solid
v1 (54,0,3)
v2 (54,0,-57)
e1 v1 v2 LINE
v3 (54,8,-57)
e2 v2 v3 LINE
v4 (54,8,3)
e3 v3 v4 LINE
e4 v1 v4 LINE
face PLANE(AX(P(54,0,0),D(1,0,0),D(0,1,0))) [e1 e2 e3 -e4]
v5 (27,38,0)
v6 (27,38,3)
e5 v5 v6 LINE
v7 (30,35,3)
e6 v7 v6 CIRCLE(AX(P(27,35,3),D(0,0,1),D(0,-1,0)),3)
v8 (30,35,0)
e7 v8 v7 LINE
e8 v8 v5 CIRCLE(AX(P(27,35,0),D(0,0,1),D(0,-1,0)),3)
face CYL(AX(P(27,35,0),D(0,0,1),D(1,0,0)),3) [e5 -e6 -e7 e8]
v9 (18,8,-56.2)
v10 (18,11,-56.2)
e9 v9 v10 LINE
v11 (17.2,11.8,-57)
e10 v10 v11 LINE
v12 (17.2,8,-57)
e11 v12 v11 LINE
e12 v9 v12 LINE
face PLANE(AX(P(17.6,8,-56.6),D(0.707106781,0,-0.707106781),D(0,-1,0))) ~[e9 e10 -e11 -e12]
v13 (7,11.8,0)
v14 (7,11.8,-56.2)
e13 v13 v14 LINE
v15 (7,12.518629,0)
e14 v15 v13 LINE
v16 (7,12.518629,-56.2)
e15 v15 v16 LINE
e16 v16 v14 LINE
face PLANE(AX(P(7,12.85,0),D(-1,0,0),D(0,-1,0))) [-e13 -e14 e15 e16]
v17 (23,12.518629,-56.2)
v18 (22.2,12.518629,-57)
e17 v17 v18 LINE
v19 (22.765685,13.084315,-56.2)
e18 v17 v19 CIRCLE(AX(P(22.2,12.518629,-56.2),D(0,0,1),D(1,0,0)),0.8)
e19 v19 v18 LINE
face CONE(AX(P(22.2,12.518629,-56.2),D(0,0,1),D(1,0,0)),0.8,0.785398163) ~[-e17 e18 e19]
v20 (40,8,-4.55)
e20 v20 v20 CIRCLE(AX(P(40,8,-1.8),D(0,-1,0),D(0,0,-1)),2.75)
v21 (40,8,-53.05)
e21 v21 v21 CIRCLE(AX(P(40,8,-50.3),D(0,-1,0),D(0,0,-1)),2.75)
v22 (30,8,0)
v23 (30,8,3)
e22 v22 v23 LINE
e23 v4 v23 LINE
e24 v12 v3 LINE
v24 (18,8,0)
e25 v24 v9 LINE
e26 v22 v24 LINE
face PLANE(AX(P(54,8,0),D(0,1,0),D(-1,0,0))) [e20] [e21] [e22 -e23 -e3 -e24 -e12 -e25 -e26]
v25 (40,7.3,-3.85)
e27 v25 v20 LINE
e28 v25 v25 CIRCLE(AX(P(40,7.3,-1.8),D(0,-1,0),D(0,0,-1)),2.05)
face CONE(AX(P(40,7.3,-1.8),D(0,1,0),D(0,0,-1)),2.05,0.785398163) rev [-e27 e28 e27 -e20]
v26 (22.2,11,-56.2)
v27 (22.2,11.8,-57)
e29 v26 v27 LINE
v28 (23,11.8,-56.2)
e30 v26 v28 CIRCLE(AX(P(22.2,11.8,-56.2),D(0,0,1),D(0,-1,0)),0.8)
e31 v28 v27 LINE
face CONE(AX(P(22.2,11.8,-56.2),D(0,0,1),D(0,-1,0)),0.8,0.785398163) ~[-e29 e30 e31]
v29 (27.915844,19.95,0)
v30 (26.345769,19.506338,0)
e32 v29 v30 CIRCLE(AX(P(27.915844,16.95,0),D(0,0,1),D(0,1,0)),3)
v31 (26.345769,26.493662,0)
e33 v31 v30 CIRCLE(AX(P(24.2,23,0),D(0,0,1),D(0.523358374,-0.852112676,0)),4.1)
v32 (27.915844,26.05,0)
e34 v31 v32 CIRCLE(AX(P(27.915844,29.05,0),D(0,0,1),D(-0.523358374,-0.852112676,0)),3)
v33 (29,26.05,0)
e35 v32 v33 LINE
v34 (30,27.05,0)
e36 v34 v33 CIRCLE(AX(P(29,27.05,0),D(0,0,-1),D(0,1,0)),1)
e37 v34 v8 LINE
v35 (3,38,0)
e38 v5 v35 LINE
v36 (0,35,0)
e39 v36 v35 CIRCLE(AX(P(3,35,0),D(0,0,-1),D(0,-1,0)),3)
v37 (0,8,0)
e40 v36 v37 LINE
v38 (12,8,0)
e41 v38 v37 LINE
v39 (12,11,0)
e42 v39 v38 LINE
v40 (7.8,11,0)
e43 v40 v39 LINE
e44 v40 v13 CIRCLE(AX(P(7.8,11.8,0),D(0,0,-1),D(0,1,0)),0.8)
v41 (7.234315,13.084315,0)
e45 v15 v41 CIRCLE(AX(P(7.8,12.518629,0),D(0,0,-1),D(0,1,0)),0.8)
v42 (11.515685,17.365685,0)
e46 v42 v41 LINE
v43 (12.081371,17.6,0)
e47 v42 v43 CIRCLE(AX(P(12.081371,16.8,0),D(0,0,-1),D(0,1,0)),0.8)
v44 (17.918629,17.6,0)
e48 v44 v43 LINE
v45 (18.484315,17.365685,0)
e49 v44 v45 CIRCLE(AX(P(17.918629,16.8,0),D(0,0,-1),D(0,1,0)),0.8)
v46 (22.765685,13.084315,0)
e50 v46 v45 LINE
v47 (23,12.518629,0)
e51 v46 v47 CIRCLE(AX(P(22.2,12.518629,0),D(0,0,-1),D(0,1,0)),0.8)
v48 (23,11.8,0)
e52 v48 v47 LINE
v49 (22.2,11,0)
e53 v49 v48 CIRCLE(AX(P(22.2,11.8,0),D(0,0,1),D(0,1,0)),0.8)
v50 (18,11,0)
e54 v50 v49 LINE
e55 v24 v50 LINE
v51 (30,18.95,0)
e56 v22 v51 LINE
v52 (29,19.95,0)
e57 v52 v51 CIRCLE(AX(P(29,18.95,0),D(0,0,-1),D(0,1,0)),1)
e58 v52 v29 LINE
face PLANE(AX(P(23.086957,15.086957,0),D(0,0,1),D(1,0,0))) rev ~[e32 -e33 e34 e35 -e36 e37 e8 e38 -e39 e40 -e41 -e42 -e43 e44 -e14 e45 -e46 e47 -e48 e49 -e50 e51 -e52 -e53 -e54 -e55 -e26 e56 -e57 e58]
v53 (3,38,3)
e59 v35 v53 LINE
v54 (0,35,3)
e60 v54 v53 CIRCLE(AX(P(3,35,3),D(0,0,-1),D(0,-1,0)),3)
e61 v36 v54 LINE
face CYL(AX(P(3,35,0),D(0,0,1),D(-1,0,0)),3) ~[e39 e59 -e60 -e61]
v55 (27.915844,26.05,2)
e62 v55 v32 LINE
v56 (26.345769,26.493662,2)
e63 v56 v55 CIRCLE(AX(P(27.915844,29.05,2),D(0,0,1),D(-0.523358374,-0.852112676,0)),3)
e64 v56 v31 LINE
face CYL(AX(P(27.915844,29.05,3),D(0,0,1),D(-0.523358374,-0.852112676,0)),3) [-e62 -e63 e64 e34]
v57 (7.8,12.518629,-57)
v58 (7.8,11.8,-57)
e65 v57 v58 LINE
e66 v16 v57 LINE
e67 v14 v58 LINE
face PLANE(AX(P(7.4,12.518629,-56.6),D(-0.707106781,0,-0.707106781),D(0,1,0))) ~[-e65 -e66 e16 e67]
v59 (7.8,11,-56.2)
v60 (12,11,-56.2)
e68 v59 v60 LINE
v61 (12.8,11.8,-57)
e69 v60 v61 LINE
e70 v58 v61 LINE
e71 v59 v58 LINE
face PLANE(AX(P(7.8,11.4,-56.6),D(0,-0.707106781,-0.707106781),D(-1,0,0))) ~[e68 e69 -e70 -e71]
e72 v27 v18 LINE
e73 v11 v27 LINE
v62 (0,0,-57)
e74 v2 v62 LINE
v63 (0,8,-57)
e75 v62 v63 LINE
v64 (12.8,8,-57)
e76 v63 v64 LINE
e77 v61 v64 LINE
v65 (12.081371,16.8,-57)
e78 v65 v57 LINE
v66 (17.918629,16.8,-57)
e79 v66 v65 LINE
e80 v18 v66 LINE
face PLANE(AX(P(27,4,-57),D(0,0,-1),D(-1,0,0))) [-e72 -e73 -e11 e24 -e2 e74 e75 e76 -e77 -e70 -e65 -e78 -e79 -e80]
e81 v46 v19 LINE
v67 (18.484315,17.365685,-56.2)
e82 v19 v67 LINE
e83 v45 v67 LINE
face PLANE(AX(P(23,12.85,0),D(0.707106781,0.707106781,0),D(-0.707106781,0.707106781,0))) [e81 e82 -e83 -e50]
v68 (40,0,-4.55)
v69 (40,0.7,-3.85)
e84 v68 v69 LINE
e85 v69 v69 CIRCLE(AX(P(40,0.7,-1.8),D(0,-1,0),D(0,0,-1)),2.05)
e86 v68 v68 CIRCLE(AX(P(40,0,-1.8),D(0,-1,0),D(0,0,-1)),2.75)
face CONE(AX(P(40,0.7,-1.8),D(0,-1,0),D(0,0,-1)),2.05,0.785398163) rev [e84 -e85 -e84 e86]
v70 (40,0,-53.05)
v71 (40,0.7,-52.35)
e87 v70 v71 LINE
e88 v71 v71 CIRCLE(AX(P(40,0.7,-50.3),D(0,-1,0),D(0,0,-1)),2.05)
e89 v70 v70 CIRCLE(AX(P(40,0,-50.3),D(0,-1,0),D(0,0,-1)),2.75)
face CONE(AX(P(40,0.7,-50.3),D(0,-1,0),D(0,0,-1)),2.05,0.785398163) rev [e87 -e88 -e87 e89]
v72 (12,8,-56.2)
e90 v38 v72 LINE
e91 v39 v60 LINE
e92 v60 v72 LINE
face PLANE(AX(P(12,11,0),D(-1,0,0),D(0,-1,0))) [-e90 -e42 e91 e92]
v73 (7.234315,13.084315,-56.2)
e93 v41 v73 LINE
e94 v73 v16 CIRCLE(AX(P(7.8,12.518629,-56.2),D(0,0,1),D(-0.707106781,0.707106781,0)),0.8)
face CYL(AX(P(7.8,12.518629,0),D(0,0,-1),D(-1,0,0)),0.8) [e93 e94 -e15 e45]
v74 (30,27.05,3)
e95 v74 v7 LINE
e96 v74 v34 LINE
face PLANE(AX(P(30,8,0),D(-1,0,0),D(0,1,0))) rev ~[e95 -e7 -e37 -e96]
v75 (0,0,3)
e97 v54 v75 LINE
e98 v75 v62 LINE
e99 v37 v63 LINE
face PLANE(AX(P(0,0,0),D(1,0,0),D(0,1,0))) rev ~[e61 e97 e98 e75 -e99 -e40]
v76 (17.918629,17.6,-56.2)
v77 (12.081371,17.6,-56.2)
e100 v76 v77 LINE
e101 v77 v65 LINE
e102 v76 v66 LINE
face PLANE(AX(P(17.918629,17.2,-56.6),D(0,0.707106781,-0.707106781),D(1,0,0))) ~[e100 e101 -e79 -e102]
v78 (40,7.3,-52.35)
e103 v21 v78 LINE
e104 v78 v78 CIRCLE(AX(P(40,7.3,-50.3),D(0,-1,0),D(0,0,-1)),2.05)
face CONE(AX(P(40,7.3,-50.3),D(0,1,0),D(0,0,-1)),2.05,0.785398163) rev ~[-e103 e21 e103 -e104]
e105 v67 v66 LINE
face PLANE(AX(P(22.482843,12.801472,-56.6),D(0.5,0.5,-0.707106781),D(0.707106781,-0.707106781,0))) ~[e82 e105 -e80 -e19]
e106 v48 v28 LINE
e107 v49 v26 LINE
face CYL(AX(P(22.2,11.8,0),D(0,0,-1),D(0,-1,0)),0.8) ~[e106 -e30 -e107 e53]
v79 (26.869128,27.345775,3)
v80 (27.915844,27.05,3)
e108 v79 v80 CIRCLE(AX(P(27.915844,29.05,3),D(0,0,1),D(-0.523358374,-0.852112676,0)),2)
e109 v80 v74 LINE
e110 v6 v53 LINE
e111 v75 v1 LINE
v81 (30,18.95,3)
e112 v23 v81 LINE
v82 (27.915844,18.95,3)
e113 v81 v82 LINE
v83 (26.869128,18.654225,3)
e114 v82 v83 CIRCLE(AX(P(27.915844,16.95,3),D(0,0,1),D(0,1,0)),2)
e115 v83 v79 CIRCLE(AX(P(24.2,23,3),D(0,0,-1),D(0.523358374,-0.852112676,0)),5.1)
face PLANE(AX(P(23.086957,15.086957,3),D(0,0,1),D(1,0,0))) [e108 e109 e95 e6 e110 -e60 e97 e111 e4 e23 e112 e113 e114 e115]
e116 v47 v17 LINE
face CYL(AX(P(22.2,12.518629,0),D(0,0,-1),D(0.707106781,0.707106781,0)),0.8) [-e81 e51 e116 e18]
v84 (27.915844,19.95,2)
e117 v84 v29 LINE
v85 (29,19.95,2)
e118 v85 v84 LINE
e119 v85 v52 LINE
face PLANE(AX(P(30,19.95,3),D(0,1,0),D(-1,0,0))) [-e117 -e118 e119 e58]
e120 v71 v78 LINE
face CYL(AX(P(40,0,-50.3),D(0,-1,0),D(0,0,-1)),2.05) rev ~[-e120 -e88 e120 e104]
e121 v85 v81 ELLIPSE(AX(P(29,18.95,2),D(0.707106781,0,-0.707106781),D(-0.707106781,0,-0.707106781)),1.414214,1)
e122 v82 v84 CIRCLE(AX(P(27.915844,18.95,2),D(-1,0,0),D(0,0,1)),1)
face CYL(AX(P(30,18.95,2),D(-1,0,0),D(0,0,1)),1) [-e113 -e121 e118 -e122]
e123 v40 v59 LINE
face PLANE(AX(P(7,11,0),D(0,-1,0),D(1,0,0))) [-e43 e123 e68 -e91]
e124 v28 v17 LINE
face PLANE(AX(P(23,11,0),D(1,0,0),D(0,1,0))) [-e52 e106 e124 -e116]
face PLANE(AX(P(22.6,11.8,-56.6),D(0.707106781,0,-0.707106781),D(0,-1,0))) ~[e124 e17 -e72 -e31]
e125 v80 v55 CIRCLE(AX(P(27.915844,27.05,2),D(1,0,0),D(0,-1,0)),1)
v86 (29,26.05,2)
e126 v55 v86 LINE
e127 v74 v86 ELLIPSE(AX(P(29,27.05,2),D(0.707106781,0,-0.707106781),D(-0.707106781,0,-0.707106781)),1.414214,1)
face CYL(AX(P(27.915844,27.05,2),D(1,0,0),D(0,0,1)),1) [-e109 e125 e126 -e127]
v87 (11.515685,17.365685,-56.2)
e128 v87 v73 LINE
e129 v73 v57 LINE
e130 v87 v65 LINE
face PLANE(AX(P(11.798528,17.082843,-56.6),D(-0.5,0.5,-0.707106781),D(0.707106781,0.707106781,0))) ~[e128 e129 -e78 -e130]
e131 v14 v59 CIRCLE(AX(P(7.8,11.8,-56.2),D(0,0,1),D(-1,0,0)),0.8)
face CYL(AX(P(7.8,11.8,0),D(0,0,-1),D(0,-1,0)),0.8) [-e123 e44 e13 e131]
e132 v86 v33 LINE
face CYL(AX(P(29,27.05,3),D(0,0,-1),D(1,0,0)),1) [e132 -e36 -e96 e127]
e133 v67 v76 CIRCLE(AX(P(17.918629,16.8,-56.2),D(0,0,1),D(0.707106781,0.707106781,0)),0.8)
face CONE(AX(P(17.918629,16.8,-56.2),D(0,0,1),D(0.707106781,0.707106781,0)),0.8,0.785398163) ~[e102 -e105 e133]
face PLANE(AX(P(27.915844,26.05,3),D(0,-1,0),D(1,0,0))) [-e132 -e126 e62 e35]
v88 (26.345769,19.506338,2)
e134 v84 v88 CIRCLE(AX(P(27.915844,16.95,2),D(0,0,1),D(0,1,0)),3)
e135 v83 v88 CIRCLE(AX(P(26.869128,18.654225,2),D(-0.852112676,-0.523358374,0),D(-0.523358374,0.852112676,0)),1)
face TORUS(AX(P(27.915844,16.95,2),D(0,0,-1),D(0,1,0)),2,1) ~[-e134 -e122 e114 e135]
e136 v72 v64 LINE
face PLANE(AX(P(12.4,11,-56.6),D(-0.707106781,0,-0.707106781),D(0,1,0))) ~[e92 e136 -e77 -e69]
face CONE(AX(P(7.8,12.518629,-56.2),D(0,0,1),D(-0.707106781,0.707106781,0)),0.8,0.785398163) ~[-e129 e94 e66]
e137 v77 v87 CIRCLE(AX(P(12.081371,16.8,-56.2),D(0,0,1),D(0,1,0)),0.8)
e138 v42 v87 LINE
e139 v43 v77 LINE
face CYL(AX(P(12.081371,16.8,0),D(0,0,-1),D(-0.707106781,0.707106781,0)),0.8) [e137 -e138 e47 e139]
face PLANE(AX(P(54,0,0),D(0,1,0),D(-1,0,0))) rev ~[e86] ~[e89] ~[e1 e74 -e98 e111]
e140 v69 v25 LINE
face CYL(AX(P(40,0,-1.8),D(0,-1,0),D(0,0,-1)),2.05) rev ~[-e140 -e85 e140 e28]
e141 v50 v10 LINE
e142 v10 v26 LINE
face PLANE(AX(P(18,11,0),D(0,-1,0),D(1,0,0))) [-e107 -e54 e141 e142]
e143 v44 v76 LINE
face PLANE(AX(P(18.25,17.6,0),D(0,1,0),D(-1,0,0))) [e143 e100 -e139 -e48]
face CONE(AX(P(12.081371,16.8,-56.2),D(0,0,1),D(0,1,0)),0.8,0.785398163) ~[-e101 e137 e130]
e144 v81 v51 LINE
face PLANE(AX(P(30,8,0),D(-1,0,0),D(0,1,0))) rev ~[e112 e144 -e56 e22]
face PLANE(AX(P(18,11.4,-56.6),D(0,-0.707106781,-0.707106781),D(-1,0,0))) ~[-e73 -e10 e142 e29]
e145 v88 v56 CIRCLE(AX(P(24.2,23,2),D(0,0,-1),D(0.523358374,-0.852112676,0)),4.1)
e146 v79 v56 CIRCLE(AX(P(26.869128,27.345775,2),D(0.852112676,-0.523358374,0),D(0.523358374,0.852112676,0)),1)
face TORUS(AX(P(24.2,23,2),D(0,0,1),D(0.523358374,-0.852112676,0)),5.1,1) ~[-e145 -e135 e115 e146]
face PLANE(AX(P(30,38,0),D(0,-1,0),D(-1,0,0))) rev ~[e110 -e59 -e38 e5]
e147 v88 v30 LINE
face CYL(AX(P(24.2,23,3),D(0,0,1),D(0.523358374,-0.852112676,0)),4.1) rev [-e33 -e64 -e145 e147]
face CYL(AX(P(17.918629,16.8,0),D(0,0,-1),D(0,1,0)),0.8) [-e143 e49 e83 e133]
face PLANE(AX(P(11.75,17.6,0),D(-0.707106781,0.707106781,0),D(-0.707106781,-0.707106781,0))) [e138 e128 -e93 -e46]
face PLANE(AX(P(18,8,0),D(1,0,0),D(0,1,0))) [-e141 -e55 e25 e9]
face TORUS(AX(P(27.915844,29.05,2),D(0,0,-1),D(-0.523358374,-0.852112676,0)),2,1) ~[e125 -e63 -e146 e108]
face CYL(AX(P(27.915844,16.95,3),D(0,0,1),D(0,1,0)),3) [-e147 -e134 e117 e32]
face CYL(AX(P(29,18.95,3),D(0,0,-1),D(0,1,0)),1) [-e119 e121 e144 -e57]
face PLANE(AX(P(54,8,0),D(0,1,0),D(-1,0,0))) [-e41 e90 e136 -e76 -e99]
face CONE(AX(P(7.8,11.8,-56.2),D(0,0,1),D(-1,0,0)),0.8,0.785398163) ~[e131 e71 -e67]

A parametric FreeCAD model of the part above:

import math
import FreeCAD as App
import Part
import Sketcher

V = App.Vector
Q = App.Units.Quantity


def edges_at(feature, points):
    """Names of the edges that pass closest to the given points."""
    edges = feature.Shape.Edges
    near = lambda p: min(range(len(edges)), key=lambda i: edges[i].distToShape(Part.Vertex(*p))[0])
    return sorted({f"Edge{near(p) + 1}" for p in points})


def add_polygon(sketch, points):
    """Adds a closed chain of lines whose ends are joined by coincident constraints."""
    first, n = sketch.GeometryCount, len(points)
    for a, b in zip(points, points[1:] + points[:1]):
        sketch.addGeometry(Part.LineSegment(App.Vector(*a, 0), App.Vector(*b, 0)), False)
    for i in range(n):
        sketch.addConstraint(Sketcher.Constraint("Coincident", first + i, 2, first + (i + 1) % n, 1))

doc = App.newDocument("Part")
body = doc.addObject("PartDesign::Body", "Body")

# Sketch on XY plane
sketch1 = body.newObject("Sketcher::SketchObject", "Sketch")
sketch1.AttachmentSupport = (doc.getObject("XY_Plane"), [""])
sketch1.MapMode = "FlatFace"
add_polygon(sketch1, [(54, 0), (54, 8), (30, 8), (30, 38), (0, 38), (0, 0)])  # lines 0-5
sketch1.addConstraint(Sketcher.Constraint("Vertical", 0))
sketch1.addConstraint(Sketcher.Constraint("Horizontal", 1))
sketch1.addConstraint(Sketcher.Constraint("Vertical", 2))
sketch1.addConstraint(Sketcher.Constraint("Horizontal", 3))
sketch1.addConstraint(Sketcher.Constraint("Vertical", 4))
sketch1.addConstraint(Sketcher.Constraint("Horizontal", 5))
sketch1.addConstraint(Sketcher.Constraint("Coincident", 4, 2, -1, 1))
sketch1.addConstraint(Sketcher.Constraint("Equal", 3, 2))
sketch1.addConstraint(Sketcher.Constraint("DistanceX", 1, 2, 1, 1, Q("24 mm")))
sketch1.addConstraint(Sketcher.Constraint("DistanceX", 3, 2, 3, 1, Q("30 mm")))
sketch1.addConstraint(Sketcher.Constraint("DistanceY", 0, 1, 0, 2, Q("8 mm")))
pad1 = body.newObject("PartDesign::Pad", "Pad")
pad1.Profile = sketch1
pad1.Length = 3

# Sketch on XY plane
sketch2 = body.newObject("Sketcher::SketchObject", "Sketch001")
sketch2.AttachmentSupport = (doc.getObject("XY_Plane"), [""])
sketch2.MapMode = "FlatFace"
add_polygon(sketch2, [(54, 8), (54, 0), (0, 0), (0, 8)])  # lines 0-3
sketch2.addConstraint(Sketcher.Constraint("Vertical", 0))
sketch2.addConstraint(Sketcher.Constraint("Horizontal", 1))
sketch2.addConstraint(Sketcher.Constraint("Vertical", 2))
sketch2.addConstraint(Sketcher.Constraint("Horizontal", 3))
sketch2.addConstraint(Sketcher.Constraint("Coincident", 1, 2, -1, 1))
sketch2.addConstraint(Sketcher.Constraint("DistanceX", 1, 2, 1, 1, Q("54 mm")))
sketch2.addConstraint(Sketcher.Constraint("DistanceY", 0, 2, 0, 1, Q("8 mm")))
pad2 = body.newObject("PartDesign::Pad", "Pad001")
pad2.Profile = sketch2
pad2.Length = 57
pad2.Reversed = True

# Sketch on XZ plane
sketch3 = body.newObject("Sketcher::SketchObject", "Sketch002")
sketch3.AttachmentSupport = (doc.getObject("XZ_Plane"), [""])
sketch3.MapMode = "FlatFace"
sketch3.addGeometry(Part.Circle(V(40, -1.8, 0), V(0, 0, 1), 2), False)
sketch3.addGeometry(Part.Circle(V(40, -50.3, 0), V(0, 0, 1), 2), False)
sketch3.addConstraint(Sketcher.Constraint("Equal", 0, 1))
sketch3.addConstraint(Sketcher.Constraint("Vertical", 0, 3, 1, 3))
sketch3.addConstraint(Sketcher.Constraint("Diameter", 0, Q("4.1 mm")))
sketch3.addConstraint(Sketcher.Constraint("DistanceX", -1, 1, 0, 3, Q("40 mm")))
sketch3.addConstraint(Sketcher.Constraint("DistanceY", 0, 3, -1, 1, Q("1.8 mm")))
sketch3.addConstraint(Sketcher.Constraint("DistanceY", 1, 3, -1, 1, Q("50.3 mm")))
pocket1 = body.newObject("PartDesign::Pocket", "Pocket")
pocket1.Profile = sketch3
pocket1.Length = 57

# Sketch on XY plane
sketch4 = body.newObject("Sketcher::SketchObject", "Sketch003")
sketch4.AttachmentSupport = (doc.getObject("XY_Plane"), [""])
sketch4.MapMode = "FlatFace"
add_polygon(sketch4, [(18, 11), (18, 8), (12, 8), (12, 11), (7, 11), (7, 12.8), (11.8, 17.6), (18.2, 17.6), (23, 12.8), (23, 11)])  # lines 0-9
sketch4.addConstraint(Sketcher.Constraint("Vertical", 0))
sketch4.addConstraint(Sketcher.Constraint("Horizontal", 1))
sketch4.addConstraint(Sketcher.Constraint("Vertical", 2))
sketch4.addConstraint(Sketcher.Constraint("Horizontal", 3))
sketch4.addConstraint(Sketcher.Constraint("Vertical", 4))
sketch4.addConstraint(Sketcher.Constraint("Horizontal", 6))
sketch4.addConstraint(Sketcher.Constraint("Vertical", 8))
sketch4.addConstraint(Sketcher.Constraint("Horizontal", 9))
sketch4.addConstraint(Sketcher.Constraint("Perpendicular", 5, 7))
sketch4.addConstraint(Sketcher.Constraint("Horizontal", 4, 2, 7, 2))
sketch4.addConstraint(Sketcher.Constraint("Horizontal", 3, 2, 8, 2))
sketch4.addConstraint(Sketcher.Constraint("Equal", 3, 9))
sketch4.addConstraint(Sketcher.Constraint("Equal", 5, 7))
sketch4.addConstraint(Sketcher.Constraint("DistanceX", 1, 2, 1, 1, Q("6 mm")))
sketch4.addConstraint(Sketcher.Constraint("DistanceX", 3, 2, 3, 1, Q("5 mm")))
sketch4.addConstraint(Sketcher.Constraint("DistanceY", 0, 2, 0, 1, Q("3 mm")))
sketch4.addConstraint(Sketcher.Constraint("DistanceX", 6, 1, 6, 2, Q("6.5 mm")))
sketch4.addConstraint(Sketcher.Constraint("DistanceX", -1, 1, 0, 2, Q("18 mm")))
sketch4.addConstraint(Sketcher.Constraint("DistanceY", -1, 1, 0, 2, Q("8 mm")))
sketch4.addConstraint(Sketcher.Constraint("DistanceY", 4, 1, 4, 2, Q("1.85 mm")))
pad3 = body.newObject("PartDesign::Pad", "Pad002")
pad3.Profile = sketch4
pad3.Length = 57
pad3.Reversed = True
doc.recompute()

fillet = body.newObject("PartDesign::Fillet", "Fillet")
fillet.Base = (pad3, edges_at(pad3, [(0, 38, 1.5), (30, 38, 1.5)]))
fillet.Radius = 3

# Sketch on XY plane
sketch5 = body.newObject("Sketcher::SketchObject", "Sketch004")
sketch5.AttachmentSupport = (doc.getObject("XY_Plane"), [""])
sketch5.MapMode = "FlatFace"
sketch5.AttachmentOffset = App.Placement(V(0, 0, 3), App.Rotation())
sketch5.addGeometry(Part.LineSegment(V(30, 26.1, 0), V(27.9, 26.1, 0)), False)
sketch5.addGeometry(Part.ArcOfCircle(Part.Circle(V(27.9, 29.1, 0), V(0, 0, 1), 3), math.radians(-122), math.radians(-90)), False)
sketch5.addGeometry(Part.ArcOfCircle(Part.Circle(V(24.2, 23, 0), V(0, 0, 1), 4.1), math.radians(58), math.radians(302)), False)
sketch5.addGeometry(Part.ArcOfCircle(Part.Circle(V(27.9, 16.9, 0), V(0, 0, 1), 3), math.radians(90), math.radians(122)), False)
sketch5.addGeometry(Part.LineSegment(V(27.9, 19.9, 0), V(30, 19.9, 0)), False)
sketch5.addGeometry(Part.LineSegment(V(30, 19.9, 0), V(30, 26.1, 0)), False)
sketch5.addConstraint(Sketcher.Constraint("Tangent", 0, 2, 1, 2))
sketch5.addConstraint(Sketcher.Constraint("Tangent", 1, 1, 2, 1))
sketch5.addConstraint(Sketcher.Constraint("Tangent", 2, 2, 3, 2))
sketch5.addConstraint(Sketcher.Constraint("Tangent", 3, 1, 4, 1))
sketch5.addConstraint(Sketcher.Constraint("Coincident", 4, 2, 5, 1))
sketch5.addConstraint(Sketcher.Constraint("Coincident", 5, 2, 0, 1))
sketch5.addConstraint(Sketcher.Constraint("Horizontal", 0))
sketch5.addConstraint(Sketcher.Constraint("Horizontal", 4))
sketch5.addConstraint(Sketcher.Constraint("Vertical", 5))
sketch5.addConstraint(Sketcher.Constraint("Equal", 1, 3))
sketch5.addConstraint(Sketcher.Constraint("Vertical", 1, 3, 3, 3))
sketch5.addConstraint(Sketcher.Constraint("Radius", 1, Q("3 mm")))
sketch5.addConstraint(Sketcher.Constraint("Radius", 2, Q("4.1 mm")))
sketch5.addConstraint(Sketcher.Constraint("DistanceY", 5, 1, 5, 2, Q("6.1 mm")))
sketch5.addConstraint(Sketcher.Constraint("DistanceY", -1, 1, 2, 3, Q("23 mm")))
sketch5.addConstraint(Sketcher.Constraint("DistanceX", -1, 1, 4, 2, Q("30 mm")))
sketch5.addConstraint(Sketcher.Constraint("DistanceX", -1, 1, 2, 3, Q("24.2 mm")))
pocket2 = body.newObject("PartDesign::Pocket", "Pocket001")
pocket2.Profile = sketch5
pocket2.Length = 6
doc.recompute()

fillet2 = body.newObject("PartDesign::Fillet", "Fillet001")
fillet2.Base = (pocket2, edges_at(pocket2, [
    (30, 26.05, 1.5),
    (30, 19.95, 1.5),
    (28.958, 26.05, 3),
    (27.1, 26.163, 3),
    (20.1, 23, 3),
    (27.1, 19.837, 3),
    (28.958, 19.95, 3),
]))
fillet2.Radius = 1
doc.recompute()

fillet3 = body.newObject("PartDesign::Fillet", "Fillet002")
fillet3.Base = (fillet2, edges_at(fillet2, [
    (7, 11, -28.5),
    (7, 12.85, -28.5),
    (11.75, 17.6, -28.5),
    (18.25, 17.6, -28.5),
    (23, 12.85, -28.5),
    (23, 11, -28.5),
]))
fillet3.Radius = 0.8
doc.recompute()

chamfer = body.newObject("PartDesign::Chamfer", "Chamfer")
chamfer.Base = (fillet3, edges_at(fillet3, [
    (20.1, 11, -57),
    (23, 12.159, -57),
    (7, 12.159, -57),
    (9.375, 15.225, -57),
    (15, 17.6, -57),
    (20.625, 15.225, -57),
    (22.939, 12.825, -57),
    (18.225, 17.539, -57),
    (11.775, 17.539, -57),
    (7.061, 12.825, -57),
    (7.234, 11.234, -57),
    (22.766, 11.234, -57),
    (12, 9.5, -57),
    (9.9, 11, -57),
    (18, 9.5, -57),
]))
chamfer.Size = 0.8
doc.recompute()

chamfer2 = body.newObject("PartDesign::Chamfer", "Chamfer001")
chamfer2.Base = (chamfer, edges_at(chamfer, [
    (40, 8, -48.25),
    (40, 0, -48.25),
    (40, 8, 0.25),
    (40, 0, 0.25),
]))
chamfer2.Size = 0.7

doc.recompute()
